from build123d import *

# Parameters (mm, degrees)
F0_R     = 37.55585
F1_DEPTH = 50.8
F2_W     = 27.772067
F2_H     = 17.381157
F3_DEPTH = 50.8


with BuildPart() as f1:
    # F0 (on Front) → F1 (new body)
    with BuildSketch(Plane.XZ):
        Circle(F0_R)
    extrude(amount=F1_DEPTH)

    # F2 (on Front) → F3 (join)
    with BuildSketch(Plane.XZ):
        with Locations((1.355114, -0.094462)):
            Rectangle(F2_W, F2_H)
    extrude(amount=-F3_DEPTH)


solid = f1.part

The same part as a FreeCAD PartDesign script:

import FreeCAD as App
import Part
import Sketcher
from FreeCAD import Vector
Q = App.Units.Quantity

doc = App.newDocument("Part")
body = doc.addObject("PartDesign::Body", "Body")

# Sketch on XZ plane
sketch1 = body.newObject("Sketcher::SketchObject", "Sketch")
sketch1.AttachmentSupport = (doc.getObject("XZ_Plane"), [""])
sketch1.MapMode = "FlatFace"
sketch1.addGeometry(Part.Circle(Vector(0, 0, 0), Vector(0, 0, 1), 37.55585), False)
sketch1.addConstraint([
    Sketcher.Constraint("Coincident", 0, 3, -1, 1),
    Sketcher.Constraint("Diameter", 0, 75.1117),
])
pad1 = body.newObject("PartDesign::Pad", "Pad")
pad1.Profile = sketch1
pad1.Length = Q("2 in")

# Sketch on XZ plane
sketch2 = body.newObject("Sketcher::SketchObject", "Sketch001")
sketch2.AttachmentSupport = (doc.getObject("XZ_Plane"), [""])
sketch2.MapMode = "FlatFace"
sketch2.addGeometry([
    Part.LineSegment(Vector(-12.530919, 8.596117, 0), Vector(-12.530919, -8.78504, 0)),
    Part.LineSegment(Vector(-12.530919, -8.78504, 0), Vector(15.241148, -8.78504, 0)),
    Part.LineSegment(Vector(15.241148, -8.78504, 0), Vector(15.241148, 8.596117, 0)),
    Part.LineSegment(Vector(15.241148, 8.596117, 0), Vector(-12.530919, 8.596117, 0)),
], False)
sketch2.addConstraint([
    Sketcher.Constraint("Coincident", 0, 2, 1, 1),
    Sketcher.Constraint("Coincident", 1, 2, 2, 1),
    Sketcher.Constraint("Coincident", 2, 2, 3, 1),
    Sketcher.Constraint("Coincident", 3, 2, 0, 1),
    Sketcher.Constraint("Vertical", 0),
    Sketcher.Constraint("Horizontal", 1),
    Sketcher.Constraint("Vertical", 2),
    Sketcher.Constraint("Horizontal", 3),
    Sketcher.Constraint("DistanceX", 1, 1, 1, 2, 27.772067),
    Sketcher.Constraint("DistanceY", 0, 2, 0, 1, 17.381157),
    Sketcher.Constraint("DistanceX", 0, 2, -1, 1, 12.530919),
    Sketcher.Constraint("DistanceY", 0, 2, -1, 1, 8.78504),
])
pad2 = body.newObject("PartDesign::Pad", "Pad001")
pad2.Profile = sketch2
pad2.Length = Q("2 in")
pad2.Reversed = True

doc.recompute()
